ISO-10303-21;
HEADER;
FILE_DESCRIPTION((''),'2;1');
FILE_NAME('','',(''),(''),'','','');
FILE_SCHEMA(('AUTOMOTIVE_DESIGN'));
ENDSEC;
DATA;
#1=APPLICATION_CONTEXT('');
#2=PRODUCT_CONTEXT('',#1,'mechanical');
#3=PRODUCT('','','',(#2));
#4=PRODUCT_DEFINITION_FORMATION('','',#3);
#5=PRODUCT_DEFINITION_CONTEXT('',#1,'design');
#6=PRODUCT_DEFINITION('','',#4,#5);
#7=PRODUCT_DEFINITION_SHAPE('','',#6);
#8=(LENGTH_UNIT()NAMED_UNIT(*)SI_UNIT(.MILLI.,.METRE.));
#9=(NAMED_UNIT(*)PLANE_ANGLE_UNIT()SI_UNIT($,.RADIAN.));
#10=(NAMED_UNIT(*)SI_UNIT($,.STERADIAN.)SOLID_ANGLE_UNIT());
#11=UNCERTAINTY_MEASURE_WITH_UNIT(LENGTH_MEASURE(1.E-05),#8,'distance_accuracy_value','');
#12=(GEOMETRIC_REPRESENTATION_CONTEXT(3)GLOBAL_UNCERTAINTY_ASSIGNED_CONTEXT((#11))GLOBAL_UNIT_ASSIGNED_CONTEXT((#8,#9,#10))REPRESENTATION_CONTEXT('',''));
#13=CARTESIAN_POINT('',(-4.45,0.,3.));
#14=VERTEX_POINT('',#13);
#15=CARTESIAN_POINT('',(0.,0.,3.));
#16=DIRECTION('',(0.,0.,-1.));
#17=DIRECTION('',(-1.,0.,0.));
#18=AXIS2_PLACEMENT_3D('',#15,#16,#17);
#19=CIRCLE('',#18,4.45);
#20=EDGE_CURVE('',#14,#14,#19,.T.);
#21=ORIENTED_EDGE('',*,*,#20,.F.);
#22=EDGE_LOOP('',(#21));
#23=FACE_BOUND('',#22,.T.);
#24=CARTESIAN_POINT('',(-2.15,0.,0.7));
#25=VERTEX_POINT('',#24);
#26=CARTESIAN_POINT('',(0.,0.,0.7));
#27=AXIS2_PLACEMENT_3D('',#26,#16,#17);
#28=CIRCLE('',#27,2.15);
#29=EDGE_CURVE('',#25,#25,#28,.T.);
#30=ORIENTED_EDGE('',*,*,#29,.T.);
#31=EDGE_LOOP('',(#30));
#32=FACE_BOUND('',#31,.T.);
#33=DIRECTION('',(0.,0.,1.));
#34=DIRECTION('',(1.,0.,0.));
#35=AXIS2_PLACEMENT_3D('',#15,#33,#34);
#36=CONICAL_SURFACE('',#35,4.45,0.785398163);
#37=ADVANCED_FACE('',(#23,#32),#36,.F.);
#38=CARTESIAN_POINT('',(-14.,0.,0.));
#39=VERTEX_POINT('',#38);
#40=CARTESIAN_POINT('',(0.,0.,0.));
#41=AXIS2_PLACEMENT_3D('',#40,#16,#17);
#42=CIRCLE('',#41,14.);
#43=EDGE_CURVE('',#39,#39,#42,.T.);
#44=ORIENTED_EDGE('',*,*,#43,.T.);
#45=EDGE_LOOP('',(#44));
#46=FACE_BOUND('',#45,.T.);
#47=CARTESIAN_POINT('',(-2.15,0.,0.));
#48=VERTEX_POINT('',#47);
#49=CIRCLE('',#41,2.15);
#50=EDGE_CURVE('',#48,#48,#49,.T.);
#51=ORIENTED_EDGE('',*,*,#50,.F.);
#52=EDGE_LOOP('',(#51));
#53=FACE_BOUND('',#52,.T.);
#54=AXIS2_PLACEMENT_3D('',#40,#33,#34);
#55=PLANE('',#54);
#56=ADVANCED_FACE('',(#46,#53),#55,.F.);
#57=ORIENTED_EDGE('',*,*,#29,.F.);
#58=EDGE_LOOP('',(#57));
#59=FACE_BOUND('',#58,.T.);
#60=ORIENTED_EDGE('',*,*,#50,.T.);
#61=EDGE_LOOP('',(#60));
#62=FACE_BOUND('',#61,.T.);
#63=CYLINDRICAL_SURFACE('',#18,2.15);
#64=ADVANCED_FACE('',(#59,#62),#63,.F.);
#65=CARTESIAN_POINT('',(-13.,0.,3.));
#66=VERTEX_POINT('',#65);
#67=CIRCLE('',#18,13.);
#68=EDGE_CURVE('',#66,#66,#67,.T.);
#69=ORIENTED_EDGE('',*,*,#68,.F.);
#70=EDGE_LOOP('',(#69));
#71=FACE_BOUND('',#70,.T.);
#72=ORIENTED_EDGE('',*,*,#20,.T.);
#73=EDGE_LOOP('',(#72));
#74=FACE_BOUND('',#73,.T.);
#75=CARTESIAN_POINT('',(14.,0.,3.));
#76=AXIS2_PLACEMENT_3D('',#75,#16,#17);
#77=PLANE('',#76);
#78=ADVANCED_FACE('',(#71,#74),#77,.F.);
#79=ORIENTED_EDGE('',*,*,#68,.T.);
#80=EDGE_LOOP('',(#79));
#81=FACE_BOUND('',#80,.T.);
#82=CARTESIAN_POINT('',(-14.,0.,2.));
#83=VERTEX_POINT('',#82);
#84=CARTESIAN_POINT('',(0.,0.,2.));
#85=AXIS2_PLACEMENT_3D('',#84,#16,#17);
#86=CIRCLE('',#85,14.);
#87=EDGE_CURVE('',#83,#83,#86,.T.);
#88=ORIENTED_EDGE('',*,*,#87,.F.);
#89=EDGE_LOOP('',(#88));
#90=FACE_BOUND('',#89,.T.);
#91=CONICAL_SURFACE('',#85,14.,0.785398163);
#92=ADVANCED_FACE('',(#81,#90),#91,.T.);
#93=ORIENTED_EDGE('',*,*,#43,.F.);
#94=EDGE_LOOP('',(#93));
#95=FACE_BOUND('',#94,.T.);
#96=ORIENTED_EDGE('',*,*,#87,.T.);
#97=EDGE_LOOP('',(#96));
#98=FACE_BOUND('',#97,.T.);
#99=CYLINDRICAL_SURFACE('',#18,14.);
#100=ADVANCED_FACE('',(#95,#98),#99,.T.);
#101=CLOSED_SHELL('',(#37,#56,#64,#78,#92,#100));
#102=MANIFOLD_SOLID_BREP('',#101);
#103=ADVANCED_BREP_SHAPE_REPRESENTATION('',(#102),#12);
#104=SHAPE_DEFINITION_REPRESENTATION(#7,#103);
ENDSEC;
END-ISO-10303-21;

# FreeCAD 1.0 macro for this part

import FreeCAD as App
import Part
import Sketcher
Q = App.Units.Quantity


def add_polygon(sketch, points):
    """Adds a closed chain of lines whose ends are joined by coincident constraints."""
    first, n = sketch.GeometryCount, len(points)
    for a, b in zip(points, points[1:] + points[:1]):
        sketch.addGeometry(Part.LineSegment(App.Vector(*a, 0), App.Vector(*b, 0)), False)
    for i in range(n):
        sketch.addConstraint(Sketcher.Constraint("Coincident", first + i, 2, first + (i + 1) % n, 1))

doc = App.newDocument("Part")
body = doc.addObject("PartDesign::Body", "Body")

sketch1 = doc.addObject("Sketcher::SketchObject", "Sketch")
body.addObject(sketch1)
sketch1.AttachmentSupport = (doc.XZ_Plane, [""])
sketch1.MapMode = "FlatFace"
add_polygon(sketch1, [(0, 0), (0, 3), (14, 3), (14, 0)])
sketch1.addConstraint([
    Sketcher.Constraint("Vertical", 0),
    Sketcher.Constraint("Horizontal", 1),
    Sketcher.Constraint("Vertical", 2),
    Sketcher.Constraint("Horizontal", 3),
    Sketcher.Constraint("Coincident", 3, 2, -1, 1),
    Sketcher.Constraint("DistanceX", 1, 1, 1, 2, 14.0),
    Sketcher.Constraint("DistanceY", 0, 1, 0, 2, 3.0),
])
revolution = doc.addObject("PartDesign::Revolution", "Revolution")
body.addObject(revolution)
revolution.Profile = sketch1
revolution.ReferenceAxis = (sketch1, ["V_Axis"])
revolution.Angle = 360

sketch2 = doc.addObject("Sketcher::SketchObject", "Sketch001")
body.addObject(sketch2)
sketch2.AttachmentSupport = (doc.XZ_Plane, [""])
sketch2.MapMode = "FlatFace"
add_polygon(sketch2, [(13, 3), (14, 3), (14, 2)])
sketch2.addConstraint([
    Sketcher.Constraint("Horizontal", 0),
    Sketcher.Constraint("Vertical", 1),
    Sketcher.Constraint("Equal", 0, 1),
    Sketcher.Constraint("DistanceX", 0, 1, 0, 2, 1.0),
    Sketcher.Constraint("DistanceX", -1, 1, 0, 2, 14.0),
    Sketcher.Constraint("DistanceY", -1, 1, 0, 2, 3.0),
])
groove = doc.addObject("PartDesign::Groove", "Groove")
body.addObject(groove)
groove.Profile = sketch2
groove.ReferenceAxis = (sketch2, ["V_Axis"])
groove.Angle = 360

sketch3 = doc.addObject("Sketcher::SketchObject", "Sketch002")
body.addObject(sketch3)
sketch3.AttachmentSupport = (doc.XZ_Plane, [""])
sketch3.MapMode = "FlatFace"
add_polygon(sketch3, [(2.1, 0), (0, 0), (0, 3), (4.5, 3), (2.1, 0.7)])
sketch3.addConstraint([
    Sketcher.Constraint("Horizontal", 0),
    Sketcher.Constraint("Vertical", 1),
    Sketcher.Constraint("Horizontal", 2),
    Sketcher.Constraint("Vertical", 4),
    Sketcher.Constraint("Coincident", 0, 2, -1, 1),
    Sketcher.Constraint("DistanceY", 1, 1, 1, 2, 3.0),
    Sketcher.Constraint("Angle", 3, Q("-135 deg")),
    Sketcher.Constraint("DistanceY", 4, 2, 4, 1, 0.7),
    Sketcher.Constraint("DistanceX", 0, 2, 0, 1, 2.15),
])
groove2 = doc.addObject("PartDesign::Groove", "Groove001")
body.addObject(groove2)
groove2.Profile = sketch3
groove2.ReferenceAxis = (sketch3, ["V_Axis"])
groove2.Angle = 360
body2 = doc.addObject("PartDesign::Body", "Body001")

sketch4 = doc.addObject("Sketcher::SketchObject", "Sketch003")
body2.addObject(sketch4)
sketch4.AttachmentSupport = (doc.getObject("YZ_Plane001"), [""])
sketch4.MapMode = "FlatFace"
sketch4.addGeometry(Part.Circle(App.Vector(0, 0, 0), App.Vector(0, 0, 1), 10), False)
sketch4.addConstraint([
    Sketcher.Constraint("Coincident", 0, 3, -1, 1),
    Sketcher.Constraint("Diameter", 0, 21.0),
])
pad1 = doc.addObject("PartDesign::Pad", "Pad")
body2.addObject(pad1)
pad1.Profile = sketch4
pad1.Length = 7
body2.Visibility = False

doc.recompute()
